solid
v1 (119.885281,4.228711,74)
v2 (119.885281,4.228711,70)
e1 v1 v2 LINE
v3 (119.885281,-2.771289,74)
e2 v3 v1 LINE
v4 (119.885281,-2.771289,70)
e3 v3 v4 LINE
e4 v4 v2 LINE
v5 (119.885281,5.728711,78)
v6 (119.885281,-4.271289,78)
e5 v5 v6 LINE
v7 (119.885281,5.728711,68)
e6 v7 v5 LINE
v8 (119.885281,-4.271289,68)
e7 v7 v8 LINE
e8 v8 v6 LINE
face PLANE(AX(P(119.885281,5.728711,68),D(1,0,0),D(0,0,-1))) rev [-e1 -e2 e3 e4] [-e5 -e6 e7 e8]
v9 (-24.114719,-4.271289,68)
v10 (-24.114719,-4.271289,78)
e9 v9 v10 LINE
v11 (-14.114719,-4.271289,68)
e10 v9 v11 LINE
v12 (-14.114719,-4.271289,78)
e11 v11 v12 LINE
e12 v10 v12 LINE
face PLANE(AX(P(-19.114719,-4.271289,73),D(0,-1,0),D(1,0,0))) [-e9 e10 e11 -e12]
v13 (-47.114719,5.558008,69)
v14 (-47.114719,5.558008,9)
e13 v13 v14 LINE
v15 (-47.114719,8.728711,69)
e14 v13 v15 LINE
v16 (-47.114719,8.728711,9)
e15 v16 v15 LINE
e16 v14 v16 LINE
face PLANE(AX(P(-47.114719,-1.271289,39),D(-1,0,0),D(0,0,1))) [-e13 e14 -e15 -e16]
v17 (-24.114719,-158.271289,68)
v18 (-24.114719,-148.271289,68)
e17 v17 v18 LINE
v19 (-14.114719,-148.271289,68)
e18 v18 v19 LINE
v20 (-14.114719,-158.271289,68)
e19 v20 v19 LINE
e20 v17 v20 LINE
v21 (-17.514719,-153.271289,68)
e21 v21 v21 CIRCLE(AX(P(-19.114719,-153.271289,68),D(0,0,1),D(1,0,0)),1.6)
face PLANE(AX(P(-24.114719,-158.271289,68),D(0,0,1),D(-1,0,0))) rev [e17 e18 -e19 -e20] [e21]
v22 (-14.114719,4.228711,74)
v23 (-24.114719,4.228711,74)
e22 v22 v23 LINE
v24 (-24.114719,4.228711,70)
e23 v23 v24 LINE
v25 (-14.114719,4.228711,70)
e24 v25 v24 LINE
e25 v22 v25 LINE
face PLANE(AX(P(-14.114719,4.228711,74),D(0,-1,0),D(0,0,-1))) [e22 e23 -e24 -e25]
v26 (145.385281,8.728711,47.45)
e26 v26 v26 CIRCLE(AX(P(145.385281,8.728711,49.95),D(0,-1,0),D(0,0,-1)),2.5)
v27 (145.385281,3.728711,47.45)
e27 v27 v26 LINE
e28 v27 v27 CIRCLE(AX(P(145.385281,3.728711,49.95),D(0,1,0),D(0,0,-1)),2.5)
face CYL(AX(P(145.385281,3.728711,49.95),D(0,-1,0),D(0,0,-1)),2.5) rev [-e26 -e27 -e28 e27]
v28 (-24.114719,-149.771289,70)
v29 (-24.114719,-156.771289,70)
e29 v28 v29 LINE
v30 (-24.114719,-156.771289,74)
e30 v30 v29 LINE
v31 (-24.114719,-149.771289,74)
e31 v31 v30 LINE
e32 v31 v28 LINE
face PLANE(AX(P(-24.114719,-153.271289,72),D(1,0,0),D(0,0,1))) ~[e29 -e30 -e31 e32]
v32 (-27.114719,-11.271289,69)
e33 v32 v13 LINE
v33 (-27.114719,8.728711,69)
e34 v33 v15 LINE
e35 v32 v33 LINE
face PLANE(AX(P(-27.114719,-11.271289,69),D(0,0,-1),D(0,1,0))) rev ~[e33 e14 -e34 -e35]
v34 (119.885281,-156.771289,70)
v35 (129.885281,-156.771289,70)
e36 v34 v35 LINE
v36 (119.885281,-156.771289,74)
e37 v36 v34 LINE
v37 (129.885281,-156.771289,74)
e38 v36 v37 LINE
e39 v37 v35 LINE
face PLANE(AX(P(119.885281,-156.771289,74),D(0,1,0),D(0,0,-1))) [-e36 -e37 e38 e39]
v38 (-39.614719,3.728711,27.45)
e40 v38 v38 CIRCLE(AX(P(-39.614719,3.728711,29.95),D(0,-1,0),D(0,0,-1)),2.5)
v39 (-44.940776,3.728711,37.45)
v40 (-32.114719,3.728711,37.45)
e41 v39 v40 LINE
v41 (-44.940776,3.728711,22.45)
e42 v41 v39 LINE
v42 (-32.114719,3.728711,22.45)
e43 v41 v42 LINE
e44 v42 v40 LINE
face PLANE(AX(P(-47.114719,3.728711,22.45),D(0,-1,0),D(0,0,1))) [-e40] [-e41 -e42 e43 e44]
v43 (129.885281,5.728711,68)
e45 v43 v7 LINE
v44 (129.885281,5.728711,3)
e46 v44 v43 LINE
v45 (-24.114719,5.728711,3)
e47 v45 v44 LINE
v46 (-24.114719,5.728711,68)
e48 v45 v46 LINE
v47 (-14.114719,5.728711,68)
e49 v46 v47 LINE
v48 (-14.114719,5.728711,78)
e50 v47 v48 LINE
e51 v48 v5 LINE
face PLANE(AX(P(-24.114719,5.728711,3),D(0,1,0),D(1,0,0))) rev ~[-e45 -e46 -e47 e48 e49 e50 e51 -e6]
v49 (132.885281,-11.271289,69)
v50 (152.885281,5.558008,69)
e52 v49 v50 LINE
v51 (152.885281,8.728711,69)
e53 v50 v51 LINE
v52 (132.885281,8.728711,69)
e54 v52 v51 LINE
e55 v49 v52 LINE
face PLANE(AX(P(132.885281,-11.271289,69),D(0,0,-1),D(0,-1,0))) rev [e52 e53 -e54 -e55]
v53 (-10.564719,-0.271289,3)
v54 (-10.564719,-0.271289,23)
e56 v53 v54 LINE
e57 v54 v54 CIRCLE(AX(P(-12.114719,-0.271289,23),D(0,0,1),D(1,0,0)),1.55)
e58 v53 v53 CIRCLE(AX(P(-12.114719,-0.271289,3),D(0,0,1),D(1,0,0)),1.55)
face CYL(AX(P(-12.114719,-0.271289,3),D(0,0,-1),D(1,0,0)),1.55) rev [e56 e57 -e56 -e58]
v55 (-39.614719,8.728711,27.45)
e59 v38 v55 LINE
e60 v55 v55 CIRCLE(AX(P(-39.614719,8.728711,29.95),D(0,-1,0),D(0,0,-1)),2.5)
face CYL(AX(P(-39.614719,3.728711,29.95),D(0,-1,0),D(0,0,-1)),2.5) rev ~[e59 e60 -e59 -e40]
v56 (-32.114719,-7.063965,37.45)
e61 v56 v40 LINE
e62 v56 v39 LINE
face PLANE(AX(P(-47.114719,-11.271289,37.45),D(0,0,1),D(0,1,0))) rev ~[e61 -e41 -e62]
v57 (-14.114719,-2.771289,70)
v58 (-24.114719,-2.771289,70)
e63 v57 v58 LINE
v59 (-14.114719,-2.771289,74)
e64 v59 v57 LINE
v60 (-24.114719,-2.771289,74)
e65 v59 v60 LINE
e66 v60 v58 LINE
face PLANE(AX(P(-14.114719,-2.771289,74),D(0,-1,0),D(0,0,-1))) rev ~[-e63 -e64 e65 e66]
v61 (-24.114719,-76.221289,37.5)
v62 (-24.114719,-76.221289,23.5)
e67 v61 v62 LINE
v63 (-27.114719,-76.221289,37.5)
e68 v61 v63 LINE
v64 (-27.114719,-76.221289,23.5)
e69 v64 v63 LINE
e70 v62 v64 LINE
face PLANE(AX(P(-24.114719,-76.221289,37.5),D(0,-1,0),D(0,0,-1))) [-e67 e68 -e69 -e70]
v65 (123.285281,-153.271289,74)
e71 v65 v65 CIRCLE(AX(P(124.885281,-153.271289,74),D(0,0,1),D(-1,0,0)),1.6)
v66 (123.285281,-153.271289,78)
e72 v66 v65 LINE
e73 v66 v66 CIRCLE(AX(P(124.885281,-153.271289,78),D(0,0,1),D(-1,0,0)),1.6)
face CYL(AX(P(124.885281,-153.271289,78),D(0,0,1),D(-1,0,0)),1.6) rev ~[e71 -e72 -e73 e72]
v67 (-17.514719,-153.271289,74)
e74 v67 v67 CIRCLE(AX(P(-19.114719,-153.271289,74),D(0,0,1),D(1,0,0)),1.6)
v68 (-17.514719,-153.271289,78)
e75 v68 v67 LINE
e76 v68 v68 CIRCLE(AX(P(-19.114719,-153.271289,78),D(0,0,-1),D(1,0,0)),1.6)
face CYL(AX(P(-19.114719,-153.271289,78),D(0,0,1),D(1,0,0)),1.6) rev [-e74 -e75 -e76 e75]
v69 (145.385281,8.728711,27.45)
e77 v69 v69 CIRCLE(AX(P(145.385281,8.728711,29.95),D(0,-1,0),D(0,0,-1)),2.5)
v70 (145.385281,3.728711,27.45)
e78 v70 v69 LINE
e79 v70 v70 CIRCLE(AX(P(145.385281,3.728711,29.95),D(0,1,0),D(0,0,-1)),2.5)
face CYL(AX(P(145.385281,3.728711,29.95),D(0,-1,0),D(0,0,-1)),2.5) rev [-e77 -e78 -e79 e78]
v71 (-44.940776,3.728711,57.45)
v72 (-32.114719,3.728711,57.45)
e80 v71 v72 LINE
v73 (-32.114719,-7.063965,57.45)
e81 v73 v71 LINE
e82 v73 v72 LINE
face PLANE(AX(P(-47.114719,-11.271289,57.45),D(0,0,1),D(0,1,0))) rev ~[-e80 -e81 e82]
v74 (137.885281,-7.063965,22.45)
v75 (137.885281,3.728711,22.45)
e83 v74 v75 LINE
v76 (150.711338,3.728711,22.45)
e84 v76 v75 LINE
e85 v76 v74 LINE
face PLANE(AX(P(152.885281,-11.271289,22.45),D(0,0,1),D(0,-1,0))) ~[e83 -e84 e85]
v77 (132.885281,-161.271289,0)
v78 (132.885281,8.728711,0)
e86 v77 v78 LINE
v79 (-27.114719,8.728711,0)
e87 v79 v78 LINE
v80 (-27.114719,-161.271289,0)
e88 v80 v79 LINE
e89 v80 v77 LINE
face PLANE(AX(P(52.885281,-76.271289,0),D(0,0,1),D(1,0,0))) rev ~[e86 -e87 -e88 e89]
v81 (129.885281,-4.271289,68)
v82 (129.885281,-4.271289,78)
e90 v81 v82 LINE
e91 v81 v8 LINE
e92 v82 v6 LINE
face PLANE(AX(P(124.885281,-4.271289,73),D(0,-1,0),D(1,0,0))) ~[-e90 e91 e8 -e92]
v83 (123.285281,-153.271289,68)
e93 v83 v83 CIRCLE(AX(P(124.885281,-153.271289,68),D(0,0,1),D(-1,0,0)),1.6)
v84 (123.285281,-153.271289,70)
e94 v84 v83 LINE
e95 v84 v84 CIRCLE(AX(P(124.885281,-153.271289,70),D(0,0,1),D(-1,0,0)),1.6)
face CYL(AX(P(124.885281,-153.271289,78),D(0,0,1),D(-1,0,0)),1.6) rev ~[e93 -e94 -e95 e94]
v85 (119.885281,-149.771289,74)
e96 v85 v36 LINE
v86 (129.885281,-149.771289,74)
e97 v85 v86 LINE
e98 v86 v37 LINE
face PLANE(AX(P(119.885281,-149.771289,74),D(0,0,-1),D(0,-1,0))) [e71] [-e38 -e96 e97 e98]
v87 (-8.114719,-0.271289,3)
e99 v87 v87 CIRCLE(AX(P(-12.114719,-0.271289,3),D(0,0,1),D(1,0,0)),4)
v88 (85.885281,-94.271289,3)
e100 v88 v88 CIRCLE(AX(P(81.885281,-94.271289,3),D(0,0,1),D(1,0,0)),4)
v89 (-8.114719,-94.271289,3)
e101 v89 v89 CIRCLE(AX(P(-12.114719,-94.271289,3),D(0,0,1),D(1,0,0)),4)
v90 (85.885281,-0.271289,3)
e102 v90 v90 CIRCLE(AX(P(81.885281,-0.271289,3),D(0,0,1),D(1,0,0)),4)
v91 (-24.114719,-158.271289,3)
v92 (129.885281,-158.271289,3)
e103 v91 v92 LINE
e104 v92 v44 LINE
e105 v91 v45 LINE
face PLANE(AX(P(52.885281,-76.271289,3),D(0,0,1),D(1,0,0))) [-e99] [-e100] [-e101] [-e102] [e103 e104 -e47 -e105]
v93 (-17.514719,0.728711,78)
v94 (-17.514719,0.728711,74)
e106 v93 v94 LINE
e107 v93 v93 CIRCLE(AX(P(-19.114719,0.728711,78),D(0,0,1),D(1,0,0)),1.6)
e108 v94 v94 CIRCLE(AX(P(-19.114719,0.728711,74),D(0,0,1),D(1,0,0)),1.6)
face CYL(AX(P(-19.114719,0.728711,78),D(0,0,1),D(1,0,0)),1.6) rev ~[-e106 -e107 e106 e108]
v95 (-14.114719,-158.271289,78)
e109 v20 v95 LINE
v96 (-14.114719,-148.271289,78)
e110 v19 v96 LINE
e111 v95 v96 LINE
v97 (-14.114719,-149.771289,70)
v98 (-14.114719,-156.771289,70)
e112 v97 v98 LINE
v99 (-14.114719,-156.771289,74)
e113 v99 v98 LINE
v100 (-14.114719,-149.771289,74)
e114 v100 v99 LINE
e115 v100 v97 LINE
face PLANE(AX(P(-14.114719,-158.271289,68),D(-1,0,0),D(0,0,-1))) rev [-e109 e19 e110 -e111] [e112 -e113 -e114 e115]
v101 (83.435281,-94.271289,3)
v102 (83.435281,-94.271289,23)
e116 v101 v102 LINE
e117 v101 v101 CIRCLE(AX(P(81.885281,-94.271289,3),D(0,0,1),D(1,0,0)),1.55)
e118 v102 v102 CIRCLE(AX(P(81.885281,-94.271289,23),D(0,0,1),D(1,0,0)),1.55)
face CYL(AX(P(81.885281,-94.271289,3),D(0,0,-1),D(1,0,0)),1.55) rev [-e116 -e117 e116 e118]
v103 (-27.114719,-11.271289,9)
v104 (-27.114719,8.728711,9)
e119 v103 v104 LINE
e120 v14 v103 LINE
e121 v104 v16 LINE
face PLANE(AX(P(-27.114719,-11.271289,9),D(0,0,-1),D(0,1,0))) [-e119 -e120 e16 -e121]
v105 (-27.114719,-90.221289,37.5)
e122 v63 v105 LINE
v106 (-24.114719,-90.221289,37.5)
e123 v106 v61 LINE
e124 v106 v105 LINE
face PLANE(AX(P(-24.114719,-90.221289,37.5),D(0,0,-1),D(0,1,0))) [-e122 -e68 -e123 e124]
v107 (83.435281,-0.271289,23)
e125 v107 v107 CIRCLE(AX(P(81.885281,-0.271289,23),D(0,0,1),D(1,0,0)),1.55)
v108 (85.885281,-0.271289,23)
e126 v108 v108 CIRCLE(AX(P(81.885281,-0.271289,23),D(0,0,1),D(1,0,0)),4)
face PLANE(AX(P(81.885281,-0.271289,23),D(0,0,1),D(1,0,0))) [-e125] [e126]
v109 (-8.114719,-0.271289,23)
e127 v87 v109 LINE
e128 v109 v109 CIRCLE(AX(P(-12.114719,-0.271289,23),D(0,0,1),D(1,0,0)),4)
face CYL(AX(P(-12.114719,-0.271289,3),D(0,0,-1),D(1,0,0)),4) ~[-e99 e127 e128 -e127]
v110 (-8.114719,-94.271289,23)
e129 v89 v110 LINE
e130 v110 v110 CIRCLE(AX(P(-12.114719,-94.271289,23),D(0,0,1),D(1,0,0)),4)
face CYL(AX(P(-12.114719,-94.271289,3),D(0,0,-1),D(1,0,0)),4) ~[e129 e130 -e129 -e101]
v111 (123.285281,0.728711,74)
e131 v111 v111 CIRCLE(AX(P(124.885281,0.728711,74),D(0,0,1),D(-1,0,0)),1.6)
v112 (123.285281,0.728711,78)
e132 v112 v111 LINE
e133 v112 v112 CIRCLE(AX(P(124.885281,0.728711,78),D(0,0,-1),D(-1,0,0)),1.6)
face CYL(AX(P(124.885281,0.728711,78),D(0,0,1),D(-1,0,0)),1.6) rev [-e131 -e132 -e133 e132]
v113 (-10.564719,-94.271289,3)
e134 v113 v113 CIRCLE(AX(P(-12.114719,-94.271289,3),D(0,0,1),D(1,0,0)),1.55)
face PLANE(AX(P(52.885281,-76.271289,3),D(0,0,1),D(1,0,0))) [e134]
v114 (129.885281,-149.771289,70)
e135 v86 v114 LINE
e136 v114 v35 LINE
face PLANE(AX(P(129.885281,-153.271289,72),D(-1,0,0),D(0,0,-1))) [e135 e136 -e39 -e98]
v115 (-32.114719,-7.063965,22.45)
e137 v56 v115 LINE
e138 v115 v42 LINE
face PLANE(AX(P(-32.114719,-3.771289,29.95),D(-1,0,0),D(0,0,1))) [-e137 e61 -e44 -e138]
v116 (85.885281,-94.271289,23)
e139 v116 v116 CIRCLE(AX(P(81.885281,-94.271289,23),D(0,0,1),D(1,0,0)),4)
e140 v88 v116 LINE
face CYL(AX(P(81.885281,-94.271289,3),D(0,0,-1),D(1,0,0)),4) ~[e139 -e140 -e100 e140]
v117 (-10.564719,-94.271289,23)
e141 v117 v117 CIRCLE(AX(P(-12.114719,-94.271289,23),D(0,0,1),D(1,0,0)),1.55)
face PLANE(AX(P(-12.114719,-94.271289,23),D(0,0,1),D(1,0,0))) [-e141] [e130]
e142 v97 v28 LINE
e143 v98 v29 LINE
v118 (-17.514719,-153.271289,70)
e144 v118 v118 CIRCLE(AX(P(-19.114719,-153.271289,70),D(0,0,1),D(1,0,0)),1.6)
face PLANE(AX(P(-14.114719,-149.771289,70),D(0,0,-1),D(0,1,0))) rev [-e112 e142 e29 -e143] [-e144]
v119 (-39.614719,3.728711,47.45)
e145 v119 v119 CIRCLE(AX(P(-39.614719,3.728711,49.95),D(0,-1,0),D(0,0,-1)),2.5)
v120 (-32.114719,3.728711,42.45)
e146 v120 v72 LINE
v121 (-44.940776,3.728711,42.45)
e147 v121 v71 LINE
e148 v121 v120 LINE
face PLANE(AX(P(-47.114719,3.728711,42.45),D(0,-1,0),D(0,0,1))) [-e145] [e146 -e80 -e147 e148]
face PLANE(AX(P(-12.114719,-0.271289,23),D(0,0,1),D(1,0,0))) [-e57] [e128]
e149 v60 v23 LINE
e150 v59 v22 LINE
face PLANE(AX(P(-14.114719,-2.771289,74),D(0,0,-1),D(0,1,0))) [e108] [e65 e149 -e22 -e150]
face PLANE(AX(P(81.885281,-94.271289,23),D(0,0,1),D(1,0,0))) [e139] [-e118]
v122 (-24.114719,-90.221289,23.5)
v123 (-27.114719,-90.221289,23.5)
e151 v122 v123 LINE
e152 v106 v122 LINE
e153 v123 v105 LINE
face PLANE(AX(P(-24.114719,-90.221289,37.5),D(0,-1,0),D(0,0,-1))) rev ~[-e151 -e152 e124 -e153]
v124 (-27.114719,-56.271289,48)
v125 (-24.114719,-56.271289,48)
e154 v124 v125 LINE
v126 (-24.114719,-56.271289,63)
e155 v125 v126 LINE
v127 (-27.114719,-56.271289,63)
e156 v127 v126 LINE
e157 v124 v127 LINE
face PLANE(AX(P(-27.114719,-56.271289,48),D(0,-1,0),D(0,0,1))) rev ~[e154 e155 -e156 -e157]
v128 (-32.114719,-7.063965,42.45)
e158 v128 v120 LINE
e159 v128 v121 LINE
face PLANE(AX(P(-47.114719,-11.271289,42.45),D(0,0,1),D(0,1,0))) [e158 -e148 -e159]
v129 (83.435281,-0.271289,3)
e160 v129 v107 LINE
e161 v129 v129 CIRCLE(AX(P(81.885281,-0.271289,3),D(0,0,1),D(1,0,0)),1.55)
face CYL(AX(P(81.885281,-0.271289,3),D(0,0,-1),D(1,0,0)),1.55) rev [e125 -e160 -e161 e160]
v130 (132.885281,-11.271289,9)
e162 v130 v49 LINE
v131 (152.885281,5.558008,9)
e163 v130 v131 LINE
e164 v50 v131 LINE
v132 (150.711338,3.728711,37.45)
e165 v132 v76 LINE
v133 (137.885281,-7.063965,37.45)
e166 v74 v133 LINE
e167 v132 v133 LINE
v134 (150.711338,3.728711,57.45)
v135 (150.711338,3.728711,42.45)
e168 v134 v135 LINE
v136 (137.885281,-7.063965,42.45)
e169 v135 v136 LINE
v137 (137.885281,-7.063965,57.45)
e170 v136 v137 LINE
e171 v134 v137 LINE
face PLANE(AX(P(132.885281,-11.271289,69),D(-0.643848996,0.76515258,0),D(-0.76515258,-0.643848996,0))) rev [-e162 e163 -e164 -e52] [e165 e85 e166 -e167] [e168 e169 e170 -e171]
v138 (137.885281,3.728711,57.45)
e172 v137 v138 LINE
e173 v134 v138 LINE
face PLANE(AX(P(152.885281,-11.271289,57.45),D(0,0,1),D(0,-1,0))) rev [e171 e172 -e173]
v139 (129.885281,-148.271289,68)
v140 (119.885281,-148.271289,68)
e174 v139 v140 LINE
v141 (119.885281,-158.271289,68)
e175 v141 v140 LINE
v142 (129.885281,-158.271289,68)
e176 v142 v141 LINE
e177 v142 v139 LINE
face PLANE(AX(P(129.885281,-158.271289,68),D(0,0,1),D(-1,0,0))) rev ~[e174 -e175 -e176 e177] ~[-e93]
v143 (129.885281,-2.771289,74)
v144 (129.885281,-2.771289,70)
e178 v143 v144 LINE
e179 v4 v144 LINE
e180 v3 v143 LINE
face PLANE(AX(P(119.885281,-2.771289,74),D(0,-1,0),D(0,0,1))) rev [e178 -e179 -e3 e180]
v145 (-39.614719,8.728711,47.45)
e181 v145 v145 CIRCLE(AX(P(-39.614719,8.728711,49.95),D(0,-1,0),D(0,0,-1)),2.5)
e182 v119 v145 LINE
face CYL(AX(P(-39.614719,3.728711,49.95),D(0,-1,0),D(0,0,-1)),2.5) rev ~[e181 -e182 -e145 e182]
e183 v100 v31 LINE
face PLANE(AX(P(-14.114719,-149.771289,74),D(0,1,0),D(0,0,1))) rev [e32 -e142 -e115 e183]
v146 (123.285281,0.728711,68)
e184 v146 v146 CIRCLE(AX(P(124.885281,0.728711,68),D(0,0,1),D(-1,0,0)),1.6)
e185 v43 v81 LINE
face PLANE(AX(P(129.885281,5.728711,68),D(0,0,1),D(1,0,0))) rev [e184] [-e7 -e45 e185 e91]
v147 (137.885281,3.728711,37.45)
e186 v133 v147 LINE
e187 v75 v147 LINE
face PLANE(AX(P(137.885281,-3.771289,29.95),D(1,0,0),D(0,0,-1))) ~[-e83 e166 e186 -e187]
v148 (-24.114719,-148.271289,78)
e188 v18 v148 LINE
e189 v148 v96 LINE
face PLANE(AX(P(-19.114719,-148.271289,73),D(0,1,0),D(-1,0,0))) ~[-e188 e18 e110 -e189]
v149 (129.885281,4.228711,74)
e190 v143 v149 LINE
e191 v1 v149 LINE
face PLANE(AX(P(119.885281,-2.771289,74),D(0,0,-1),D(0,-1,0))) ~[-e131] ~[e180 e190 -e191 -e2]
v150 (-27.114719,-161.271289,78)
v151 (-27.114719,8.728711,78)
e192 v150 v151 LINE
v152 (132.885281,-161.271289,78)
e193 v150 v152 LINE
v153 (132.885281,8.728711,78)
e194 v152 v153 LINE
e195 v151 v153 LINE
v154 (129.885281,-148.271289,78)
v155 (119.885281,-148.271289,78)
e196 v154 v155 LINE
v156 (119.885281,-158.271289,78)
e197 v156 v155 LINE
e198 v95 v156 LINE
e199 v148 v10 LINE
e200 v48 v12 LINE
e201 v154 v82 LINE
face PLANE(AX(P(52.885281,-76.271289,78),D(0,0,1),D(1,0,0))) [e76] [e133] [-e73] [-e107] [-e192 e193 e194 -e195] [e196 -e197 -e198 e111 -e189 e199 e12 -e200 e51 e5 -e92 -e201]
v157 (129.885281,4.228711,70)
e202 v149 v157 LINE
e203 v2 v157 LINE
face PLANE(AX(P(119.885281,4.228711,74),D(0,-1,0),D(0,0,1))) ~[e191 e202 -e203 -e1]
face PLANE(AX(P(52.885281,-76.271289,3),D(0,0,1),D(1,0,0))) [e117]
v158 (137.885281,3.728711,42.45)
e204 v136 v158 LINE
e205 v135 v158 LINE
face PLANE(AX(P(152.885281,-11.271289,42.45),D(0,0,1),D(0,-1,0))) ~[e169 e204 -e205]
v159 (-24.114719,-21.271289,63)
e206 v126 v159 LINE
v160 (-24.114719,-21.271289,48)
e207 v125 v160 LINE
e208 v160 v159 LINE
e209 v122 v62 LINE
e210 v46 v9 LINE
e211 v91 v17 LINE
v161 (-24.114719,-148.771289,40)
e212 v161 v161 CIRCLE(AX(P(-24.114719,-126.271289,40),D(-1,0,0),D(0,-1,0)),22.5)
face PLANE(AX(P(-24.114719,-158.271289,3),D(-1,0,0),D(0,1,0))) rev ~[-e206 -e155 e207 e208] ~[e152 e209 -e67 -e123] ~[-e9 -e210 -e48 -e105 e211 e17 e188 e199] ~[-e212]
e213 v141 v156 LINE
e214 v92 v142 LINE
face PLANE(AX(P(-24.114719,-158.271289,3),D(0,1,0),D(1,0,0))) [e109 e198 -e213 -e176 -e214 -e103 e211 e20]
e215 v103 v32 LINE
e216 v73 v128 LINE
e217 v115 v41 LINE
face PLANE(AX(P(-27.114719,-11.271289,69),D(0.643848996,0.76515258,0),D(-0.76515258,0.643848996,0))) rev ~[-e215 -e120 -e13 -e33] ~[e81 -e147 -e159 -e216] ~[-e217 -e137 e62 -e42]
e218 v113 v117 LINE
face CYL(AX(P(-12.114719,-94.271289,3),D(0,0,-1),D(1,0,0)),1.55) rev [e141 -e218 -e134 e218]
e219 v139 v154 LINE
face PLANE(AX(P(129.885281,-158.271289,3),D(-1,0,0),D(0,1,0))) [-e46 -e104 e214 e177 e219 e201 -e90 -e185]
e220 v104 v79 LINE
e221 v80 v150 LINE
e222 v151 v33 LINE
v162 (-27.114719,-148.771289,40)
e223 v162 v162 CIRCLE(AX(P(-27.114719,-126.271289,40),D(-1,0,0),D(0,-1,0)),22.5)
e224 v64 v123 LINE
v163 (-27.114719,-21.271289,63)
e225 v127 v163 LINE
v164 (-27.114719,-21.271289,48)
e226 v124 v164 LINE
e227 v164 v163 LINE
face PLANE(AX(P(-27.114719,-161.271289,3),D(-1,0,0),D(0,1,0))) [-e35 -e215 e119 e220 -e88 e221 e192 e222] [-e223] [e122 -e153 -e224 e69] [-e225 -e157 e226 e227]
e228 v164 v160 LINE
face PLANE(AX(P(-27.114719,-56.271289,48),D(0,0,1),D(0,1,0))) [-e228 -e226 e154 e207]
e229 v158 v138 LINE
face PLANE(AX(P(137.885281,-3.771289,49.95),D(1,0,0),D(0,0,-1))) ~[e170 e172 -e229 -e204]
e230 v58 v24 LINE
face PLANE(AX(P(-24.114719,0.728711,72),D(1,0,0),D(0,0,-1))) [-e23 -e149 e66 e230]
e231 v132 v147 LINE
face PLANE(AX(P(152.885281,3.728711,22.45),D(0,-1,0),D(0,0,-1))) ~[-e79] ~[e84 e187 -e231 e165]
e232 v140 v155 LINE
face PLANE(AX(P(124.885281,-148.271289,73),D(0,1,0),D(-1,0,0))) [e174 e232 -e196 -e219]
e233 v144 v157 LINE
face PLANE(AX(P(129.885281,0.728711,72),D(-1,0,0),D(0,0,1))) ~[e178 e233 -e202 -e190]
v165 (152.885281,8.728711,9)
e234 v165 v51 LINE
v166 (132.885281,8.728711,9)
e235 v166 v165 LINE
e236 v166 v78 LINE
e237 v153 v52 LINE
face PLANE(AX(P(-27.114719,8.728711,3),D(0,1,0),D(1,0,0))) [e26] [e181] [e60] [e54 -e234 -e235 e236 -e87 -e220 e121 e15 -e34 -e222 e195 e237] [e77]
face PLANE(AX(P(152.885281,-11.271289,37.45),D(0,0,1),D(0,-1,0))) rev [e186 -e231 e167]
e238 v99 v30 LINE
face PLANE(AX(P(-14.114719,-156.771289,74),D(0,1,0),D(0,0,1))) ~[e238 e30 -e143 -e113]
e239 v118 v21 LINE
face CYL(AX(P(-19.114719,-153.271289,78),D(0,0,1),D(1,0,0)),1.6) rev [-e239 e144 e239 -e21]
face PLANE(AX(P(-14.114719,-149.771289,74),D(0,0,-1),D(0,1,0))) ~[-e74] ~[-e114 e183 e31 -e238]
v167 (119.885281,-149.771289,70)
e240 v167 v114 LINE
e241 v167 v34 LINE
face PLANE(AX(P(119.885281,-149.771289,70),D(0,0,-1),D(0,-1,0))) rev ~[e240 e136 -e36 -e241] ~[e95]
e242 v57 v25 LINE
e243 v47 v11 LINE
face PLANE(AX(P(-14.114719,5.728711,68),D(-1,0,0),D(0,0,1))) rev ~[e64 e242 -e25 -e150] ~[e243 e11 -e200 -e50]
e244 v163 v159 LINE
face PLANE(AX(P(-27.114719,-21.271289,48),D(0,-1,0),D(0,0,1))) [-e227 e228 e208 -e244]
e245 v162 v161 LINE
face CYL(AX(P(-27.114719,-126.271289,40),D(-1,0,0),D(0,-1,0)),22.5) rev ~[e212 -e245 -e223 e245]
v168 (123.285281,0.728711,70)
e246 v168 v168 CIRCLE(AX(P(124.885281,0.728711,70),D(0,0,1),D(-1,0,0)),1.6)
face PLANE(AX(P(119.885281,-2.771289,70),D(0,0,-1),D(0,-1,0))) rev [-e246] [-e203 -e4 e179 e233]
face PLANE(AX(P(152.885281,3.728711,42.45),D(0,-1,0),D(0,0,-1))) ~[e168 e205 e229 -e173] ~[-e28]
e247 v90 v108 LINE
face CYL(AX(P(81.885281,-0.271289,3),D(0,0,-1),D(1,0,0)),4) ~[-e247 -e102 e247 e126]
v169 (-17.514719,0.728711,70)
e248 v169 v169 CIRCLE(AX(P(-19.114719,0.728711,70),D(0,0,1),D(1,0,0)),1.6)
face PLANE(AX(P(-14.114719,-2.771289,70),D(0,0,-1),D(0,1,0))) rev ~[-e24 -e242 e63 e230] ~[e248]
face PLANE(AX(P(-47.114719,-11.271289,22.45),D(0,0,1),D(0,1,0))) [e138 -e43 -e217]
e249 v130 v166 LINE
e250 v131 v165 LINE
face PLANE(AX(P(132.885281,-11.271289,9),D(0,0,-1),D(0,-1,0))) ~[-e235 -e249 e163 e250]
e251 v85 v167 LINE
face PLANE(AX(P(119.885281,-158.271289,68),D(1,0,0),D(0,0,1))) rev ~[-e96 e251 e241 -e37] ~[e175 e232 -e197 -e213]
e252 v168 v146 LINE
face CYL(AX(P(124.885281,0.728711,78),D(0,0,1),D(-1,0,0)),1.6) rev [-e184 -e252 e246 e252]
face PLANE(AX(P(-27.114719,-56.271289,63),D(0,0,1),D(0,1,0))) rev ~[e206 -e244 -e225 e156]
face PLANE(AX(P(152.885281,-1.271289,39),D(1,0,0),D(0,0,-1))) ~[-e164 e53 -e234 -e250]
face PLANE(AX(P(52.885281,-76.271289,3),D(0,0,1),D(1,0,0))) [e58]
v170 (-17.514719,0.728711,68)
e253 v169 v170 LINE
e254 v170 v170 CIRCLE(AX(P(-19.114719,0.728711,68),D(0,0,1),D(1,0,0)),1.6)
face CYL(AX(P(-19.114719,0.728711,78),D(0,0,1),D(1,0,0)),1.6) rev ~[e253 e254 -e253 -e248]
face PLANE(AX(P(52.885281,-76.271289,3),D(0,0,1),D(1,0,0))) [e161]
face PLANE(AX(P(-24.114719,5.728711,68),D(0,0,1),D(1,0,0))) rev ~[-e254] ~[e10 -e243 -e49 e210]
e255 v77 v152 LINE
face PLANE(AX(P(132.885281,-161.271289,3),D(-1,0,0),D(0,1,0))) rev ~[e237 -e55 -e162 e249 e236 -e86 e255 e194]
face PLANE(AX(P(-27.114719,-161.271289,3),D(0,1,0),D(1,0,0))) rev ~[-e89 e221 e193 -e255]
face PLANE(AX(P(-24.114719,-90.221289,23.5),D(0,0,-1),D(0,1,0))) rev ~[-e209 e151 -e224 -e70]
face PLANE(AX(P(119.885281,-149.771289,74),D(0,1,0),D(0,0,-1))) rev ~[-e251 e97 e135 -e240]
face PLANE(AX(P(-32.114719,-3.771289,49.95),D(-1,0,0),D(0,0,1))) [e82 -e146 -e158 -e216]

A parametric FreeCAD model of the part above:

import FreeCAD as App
import Part
import Sketcher

V = App.Vector
Q = App.Units.Quantity

doc = App.newDocument("Part")
body = doc.addObject("PartDesign::Body", "Body")

# Sketch on XY plane
sketch1 = body.newObject("Sketcher::SketchObject", "Sketch")
sketch1.AttachmentSupport = (doc.getObject("XY_Plane"), [""])
sketch1.MapMode = "FlatFace"
sketch1.addGeometry([
    Part.LineSegment(V(-27, 9, 0), V(-27, -161, 0)),
    Part.LineSegment(V(-27, -161, 0), V(133, -161, 0)),
    Part.LineSegment(V(133, -161, 0), V(133, 9, 0)),
    Part.LineSegment(V(133, 9, 0), V(-27, 9, 0)),
], False)
sketch1.addConstraint([
    Sketcher.Constraint("Coincident", 0, 2, 1, 1),
    Sketcher.Constraint("Coincident", 1, 2, 2, 1),
    Sketcher.Constraint("Coincident", 2, 2, 3, 1),
    Sketcher.Constraint("Coincident", 3, 2, 0, 1),
    Sketcher.Constraint("Vertical", 0),
    Sketcher.Constraint("Horizontal", 1),
    Sketcher.Constraint("Vertical", 2),
    Sketcher.Constraint("Horizontal", 3),
    Sketcher.Constraint("DistanceX", 1, 1, 1, 2, Q("160 mm")),
    Sketcher.Constraint("DistanceY", 0, 2, 0, 1, Q("170 mm")),
    Sketcher.Constraint("DistanceX", 0, 2, -1, 1, Q("27.114719 mm")),
    Sketcher.Constraint("DistanceY", 0, 2, -1, 1, Q("161.271289 mm")),
])
pad1 = body.newObject("PartDesign::Pad", "Pad")
pad1.Profile = sketch1
pad1.Length = 3

# Sketch on XY plane
sketch2 = body.newObject("Sketcher::SketchObject", "Sketch001")
sketch2.AttachmentSupport = (doc.getObject("XY_Plane"), [""])
sketch2.MapMode = "FlatFace"
sketch2.AttachmentOffset = App.Placement(V(0, 0, 3), App.Rotation())
sketch2.addGeometry([
    Part.LineSegment(V(-27, 9, 0), V(-27, -161, 0)),  # 0
    Part.LineSegment(V(-27, -161, 0), V(133, -161, 0)),  # 1
    Part.LineSegment(V(133, -161, 0), V(133, 9, 0)),  # 2
    Part.LineSegment(V(133, 9, 0), V(-27, 9, 0)),  # 3
    Part.LineSegment(V(130, -158, 0), V(-24, -158, 0)),  # 4
    Part.LineSegment(V(-24, -158, 0), V(-24, 6, 0)),  # 5
    Part.LineSegment(V(-24, 6, 0), V(130, 6, 0)),  # 6
    Part.LineSegment(V(130, 6, 0), V(130, -158, 0)),  # 7
], False)
sketch2.addConstraint([
    Sketcher.Constraint("Coincident", 0, 2, 1, 1),
    Sketcher.Constraint("Coincident", 1, 2, 2, 1),
    Sketcher.Constraint("Coincident", 2, 2, 3, 1),
    Sketcher.Constraint("Coincident", 3, 2, 0, 1),
    Sketcher.Constraint("Coincident", 4, 2, 5, 1),
    Sketcher.Constraint("Coincident", 5, 2, 6, 1),
    Sketcher.Constraint("Coincident", 6, 2, 7, 1),
    Sketcher.Constraint("Coincident", 7, 2, 4, 1),
    Sketcher.Constraint("Vertical", 0),
    Sketcher.Constraint("Horizontal", 1),
    Sketcher.Constraint("Vertical", 2),
    Sketcher.Constraint("Horizontal", 3),
    Sketcher.Constraint("Horizontal", 4),
    Sketcher.Constraint("Vertical", 5),
    Sketcher.Constraint("Horizontal", 6),
    Sketcher.Constraint("Vertical", 7),
    Sketcher.Constraint("DistanceX", 1, 1, 1, 2, Q("160 mm")),
    Sketcher.Constraint("DistanceX", 4, 2, 4, 1, Q("154 mm")),
    Sketcher.Constraint("DistanceY", 0, 2, 0, 1, Q("170 mm")),
    Sketcher.Constraint("DistanceY", 5, 1, 5, 2, Q("164 mm")),
    Sketcher.Constraint("DistanceX", 0, 2, 4, 2, Q("3 mm")),
    Sketcher.Constraint("DistanceY", 0, 2, 4, 2, Q("3 mm")),
    Sketcher.Constraint("DistanceX", 0, 2, -1, 1, Q("27.114719 mm")),
    Sketcher.Constraint("DistanceY", 0, 2, -1, 1, Q("161.271289 mm")),
])
pad2 = body.newObject("PartDesign::Pad", "Pad001")
pad2.Profile = sketch2
pad2.Length = 75

# Sketch on XY plane
sketch3 = body.newObject("Sketcher::SketchObject", "Sketch002")
sketch3.AttachmentSupport = (doc.getObject("XY_Plane"), [""])
sketch3.MapMode = "FlatFace"
sketch3.AttachmentOffset = App.Placement(V(0, 0, 3), App.Rotation())
sketch3.addGeometry([
    Part.Circle(V(-12.1, -0.3, 0), V(0, 0, 1), 4),  # 0
    Part.Circle(V(-12.1, -0.3, 0), V(0, 0, 1), 1.6),  # 1
    Part.Circle(V(81.9, -0.3, 0), V(0, 0, 1), 4),  # 2
    Part.Circle(V(81.9, -0.3, 0), V(0, 0, 1), 1.6),  # 3
    Part.Circle(V(-12.1, -94.3, 0), V(0, 0, 1), 4),  # 4
    Part.Circle(V(-12.1, -94.3, 0), V(0, 0, 1), 1.6),  # 5
    Part.Circle(V(81.9, -94.3, 0), V(0, 0, 1), 4),  # 6
    Part.Circle(V(81.9, -94.3, 0), V(0, 0, 1), 1.6),  # 7
], False)
sketch3.addConstraint([
    Sketcher.Constraint("Coincident", 1, 3, 0, 3),
    Sketcher.Constraint("Coincident", 3, 3, 2, 3),
    Sketcher.Constraint("Coincident", 5, 3, 4, 3),
    Sketcher.Constraint("Coincident", 7, 3, 6, 3),
    Sketcher.Constraint("Equal", 0, 2),
    Sketcher.Constraint("Equal", 1, 3),
    Sketcher.Constraint("Equal", 2, 4),
    Sketcher.Constraint("Equal", 3, 5),
    Sketcher.Constraint("Equal", 4, 6),
    Sketcher.Constraint("Equal", 5, 7),
    Sketcher.Constraint("Horizontal", 1, 3, 2, 3),
    Sketcher.Constraint("Horizontal", 5, 3, 6, 3),
    Sketcher.Constraint("Vertical", 1, 3, 4, 3),
    Sketcher.Constraint("Vertical", 3, 3, 6, 3),
    Sketcher.Constraint("Diameter", 0, Q("8 mm")),
    Sketcher.Constraint("Diameter", 1, Q("3.1 mm")),
    Sketcher.Constraint("DistanceX", 0, 3, 2, 3, Q("94 mm")),
    Sketcher.Constraint("DistanceY", 4, 3, 0, 3, Q("94 mm")),
    Sketcher.Constraint("DistanceX", 0, 3, -1, 1, Q("12.114719 mm")),
    Sketcher.Constraint("DistanceY", 0, 3, -1, 1, Q("0.271289 mm")),
])
pad3 = body.newObject("PartDesign::Pad", "Pad002")
pad3.Profile = sketch3
pad3.Length = 20

# Sketch on YZ plane
sketch4 = body.newObject("Sketcher::SketchObject", "Sketch003")
sketch4.AttachmentSupport = (doc.getObject("YZ_Plane"), [""])
sketch4.MapMode = "FlatFace"
sketch4.AttachmentOffset = App.Placement(V(0, 0, -24.114719), App.Rotation())
sketch4.addGeometry([
    Part.LineSegment(V(-76, 38, 0), V(-90, 38, 0)),
    Part.LineSegment(V(-90, 38, 0), V(-90, 24, 0)),
    Part.LineSegment(V(-90, 24, 0), V(-76, 24, 0)),
    Part.LineSegment(V(-76, 24, 0), V(-76, 38, 0)),
], False)
sketch4.addConstraint([
    Sketcher.Constraint("Coincident", 0, 2, 1, 1),
    Sketcher.Constraint("Coincident", 1, 2, 2, 1),
    Sketcher.Constraint("Coincident", 2, 2, 3, 1),
    Sketcher.Constraint("Coincident", 3, 2, 0, 1),
    Sketcher.Constraint("Horizontal", 0),
    Sketcher.Constraint("Vertical", 1),
    Sketcher.Constraint("Horizontal", 2),
    Sketcher.Constraint("Vertical", 3),
    Sketcher.Constraint("Equal", 2, 1),
    Sketcher.Constraint("DistanceX", 0, 2, 0, 1, Q("14 mm")),
    Sketcher.Constraint("DistanceY", -1, 1, 0, 2, Q("37.5 mm")),
    Sketcher.Constraint("DistanceX", 0, 2, -1, 1, Q("90.221289 mm")),
])
pocket1 = body.newObject("PartDesign::Pocket", "Pocket")
pocket1.Profile = sketch4
pocket1.Length = 20

# Sketch on YZ plane
sketch5 = body.newObject("Sketcher::SketchObject", "Sketch004")
sketch5.AttachmentSupport = (doc.getObject("YZ_Plane"), [""])
sketch5.MapMode = "FlatFace"
sketch5.AttachmentOffset = App.Placement(V(0, 0, -27.114719), App.Rotation())
sketch5.addGeometry(Part.Circle(V(-126, 40, 0), V(0, 0, 1), 22), False)
sketch5.addConstraint([
    Sketcher.Constraint("Diameter", 0, Q("45 mm")),
    Sketcher.Constraint("DistanceY", -1, 1, 0, 3, Q("40 mm")),
    Sketcher.Constraint("DistanceX", 0, 3, -1, 1, Q("126.271289 mm")),
])
pocket2 = body.newObject("PartDesign::Pocket", "Pocket001")
pocket2.Profile = sketch5
pocket2.Length = 10
pocket2.Reversed = True

# Sketch on YZ plane
sketch6 = body.newObject("Sketcher::SketchObject", "Sketch005")
sketch6.AttachmentSupport = (doc.getObject("YZ_Plane"), [""])
sketch6.MapMode = "FlatFace"
sketch6.AttachmentOffset = App.Placement(V(0, 0, -27.114719), App.Rotation())
sketch6.addGeometry([
    Part.LineSegment(V(-21, 48, 0), V(-56, 48, 0)),
    Part.LineSegment(V(-56, 48, 0), V(-56, 63, 0)),
    Part.LineSegment(V(-56, 63, 0), V(-21, 63, 0)),
    Part.LineSegment(V(-21, 63, 0), V(-21, 48, 0)),
], False)
sketch6.addConstraint([
    Sketcher.Constraint("Coincident", 0, 2, 1, 1),
    Sketcher.Constraint("Coincident", 1, 2, 2, 1),
    Sketcher.Constraint("Coincident", 2, 2, 3, 1),
    Sketcher.Constraint("Coincident", 3, 2, 0, 1),
    Sketcher.Constraint("Horizontal", 0),
    Sketcher.Constraint("Vertical", 1),
    Sketcher.Constraint("Horizontal", 2),
    Sketcher.Constraint("Vertical", 3),
    Sketcher.Constraint("DistanceX", 0, 2, 0, 1, Q("35 mm")),
    Sketcher.Constraint("DistanceY", 1, 1, 1, 2, Q("15 mm")),
    Sketcher.Constraint("DistanceY", -1, 1, 0, 2, Q("48 mm")),
    Sketcher.Constraint("DistanceX", 0, 2, -1, 1, Q("56.271289 mm")),
])
pocket3 = body.newObject("PartDesign::Pocket", "Pocket002")
pocket3.Profile = sketch6
pocket3.Length = 10
pocket3.Reversed = True

# Sketch on XZ plane
sketch7 = body.newObject("Sketcher::SketchObject", "Sketch006")
sketch7.AttachmentSupport = (doc.getObject("XZ_Plane"), [""])
sketch7.MapMode = "FlatFace"
sketch7.AttachmentOffset = App.Placement(V(0, 0, -5.728711), App.Rotation())
sketch7.addGeometry([
    Part.LineSegment(V(-24, 78, 0), V(-24, 68, 0)),
    Part.LineSegment(V(-24, 68, 0), V(-14, 68, 0)),
    Part.LineSegment(V(-14, 68, 0), V(-14, 78, 0)),
    Part.LineSegment(V(-14, 78, 0), V(-24, 78, 0)),
], False)
sketch7.addConstraint([
    Sketcher.Constraint("Coincident", 0, 2, 1, 1),
    Sketcher.Constraint("Coincident", 1, 2, 2, 1),
    Sketcher.Constraint("Coincident", 2, 2, 3, 1),
    Sketcher.Constraint("Coincident", 3, 2, 0, 1),
    Sketcher.Constraint("Vertical", 0),
    Sketcher.Constraint("Horizontal", 1),
    Sketcher.Constraint("Vertical", 2),
    Sketcher.Constraint("Horizontal", 3),
    Sketcher.Constraint("Equal", 3, 0),
    Sketcher.Constraint("DistanceX", 1, 1, 1, 2, Q("10 mm")),
    Sketcher.Constraint("DistanceY", -1, 1, 0, 2, Q("68 mm")),
    Sketcher.Constraint("DistanceX", 0, 2, -1, 1, Q("24.114719 mm")),
])
pad4 = body.newObject("PartDesign::Pad", "Pad003")
pad4.Profile = sketch7
pad4.Length = 10

# Sketch on YZ plane
sketch8 = body.newObject("Sketcher::SketchObject", "Sketch007")
sketch8.AttachmentSupport = (doc.getObject("YZ_Plane"), [""])
sketch8.MapMode = "FlatFace"
sketch8.AttachmentOffset = App.Placement(V(0, 0, -14.114719), App.Rotation())
sketch8.addGeometry([
    Part.LineSegment(V(4.2, 74, 0), V(-2.8, 74, 0)),
    Part.LineSegment(V(-2.8, 74, 0), V(-2.8, 70, 0)),
    Part.LineSegment(V(-2.8, 70, 0), V(4.2, 70, 0)),
    Part.LineSegment(V(4.2, 70, 0), V(4.2, 74, 0)),
], False)
sketch8.addConstraint([
    Sketcher.Constraint("Coincident", 0, 2, 1, 1),
    Sketcher.Constraint("Coincident", 1, 2, 2, 1),
    Sketcher.Constraint("Coincident", 2, 2, 3, 1),
    Sketcher.Constraint("Coincident", 3, 2, 0, 1),
    Sketcher.Constraint("Horizontal", 0),
    Sketcher.Constraint("Vertical", 1),
    Sketcher.Constraint("Horizontal", 2),
    Sketcher.Constraint("Vertical", 3),
    Sketcher.Constraint("DistanceX", 0, 2, 0, 1, Q("7 mm")),
    Sketcher.Constraint("DistanceY", 1, 2, 1, 1, Q("4 mm")),
    Sketcher.Constraint("DistanceY", -1, 1, 0, 2, Q("74 mm")),
    Sketcher.Constraint("DistanceX", 0, 2, -1, 1, Q("2.771289 mm")),
])
pocket4 = body.newObject("PartDesign::Pocket", "Pocket003")
pocket4.Profile = sketch8
pocket4.Length = 10

# Sketch on XY plane
sketch9 = body.newObject("Sketcher::SketchObject", "Sketch008")
sketch9.AttachmentSupport = (doc.getObject("XY_Plane"), [""])
sketch9.MapMode = "FlatFace"
sketch9.AttachmentOffset = App.Placement(V(0, 0, 78), App.Rotation())
sketch9.addGeometry(Part.Circle(V(-19.1, 0.7, 0), V(0, 0, 1), 1.6), False)
sketch9.addConstraint([
    Sketcher.Constraint("Diameter", 0, Q("3.2 mm")),
    Sketcher.Constraint("DistanceX", 0, 3, -1, 1, Q("19.114719 mm")),
    Sketcher.Constraint("DistanceY", -1, 1, 0, 3, Q("0.728711 mm")),
])
pocket5 = body.newObject("PartDesign::Pocket", "Pocket004")
pocket5.Profile = sketch9
pocket5.Length = 20
doc.recompute()

datumplane = body.newObject("PartDesign::Plane", "DatumPlane")
datumplane.AttachmentSupport = (doc.getObject("YZ_Plane"), [""])
datumplane.MapMode = "FlatFace"
datumplane.AttachmentOffset = App.Placement(V(0, 0, 52.885281), App.Rotation())
mirrored = body.newObject("PartDesign::Mirrored", "Mirrored")
mirrored.Originals = [pad4, pocket4, pocket5]
mirrored.MirrorPlane = (datumplane, [""])
body.Tip = mirrored
doc.recompute()

datumplane2 = body.newObject("PartDesign::Plane", "DatumPlane001")
datumplane2.AttachmentSupport = (doc.getObject("XZ_Plane"), [""])
datumplane2.MapMode = "FlatFace"
datumplane2.AttachmentOffset = App.Placement(V(0, 0, 76.271289), App.Rotation())
mirrored2 = body.newObject("PartDesign::Mirrored", "Mirrored001")
mirrored2.Originals = [pad4, pocket4, pocket5]
mirrored2.MirrorPlane = (datumplane2, [""])
body.Tip = mirrored2

# Sketch on XZ plane
sketch10 = body.newObject("Sketcher::SketchObject", "Sketch009")
sketch10.AttachmentSupport = (doc.getObject("XZ_Plane"), [""])
sketch10.MapMode = "FlatFace"
sketch10.AttachmentOffset = App.Placement(V(0, 0, 158.271289), App.Rotation())
sketch10.addGeometry([
    Part.LineSegment(V(130, 78, 0), V(130, 68, 0)),
    Part.LineSegment(V(130, 68, 0), V(120, 68, 0)),
    Part.LineSegment(V(120, 68, 0), V(120, 78, 0)),
    Part.LineSegment(V(120, 78, 0), V(130, 78, 0)),
], False)
sketch10.addConstraint([
    Sketcher.Constraint("Coincident", 0, 2, 1, 1),
    Sketcher.Constraint("Coincident", 1, 2, 2, 1),
    Sketcher.Constraint("Coincident", 2, 2, 3, 1),
    Sketcher.Constraint("Coincident", 3, 2, 0, 1),
    Sketcher.Constraint("Vertical", 0),
    Sketcher.Constraint("Horizontal", 1),
    Sketcher.Constraint("Vertical", 2),
    Sketcher.Constraint("Horizontal", 3),
    Sketcher.Constraint("Equal", 3, 0),
    Sketcher.Constraint("DistanceX", 1, 2, 1, 1, Q("10 mm")),
    Sketcher.Constraint("DistanceY", -1, 1, 0, 2, Q("68 mm")),
    Sketcher.Constraint("DistanceX", -1, 1, 0, 2, Q("129.885281 mm")),
])
pad5 = body.newObject("PartDesign::Pad", "Pad004")
pad5.Profile = sketch10
pad5.Length = 10
pad5.Reversed = True

# Sketch on YZ plane
sketch11 = body.newObject("Sketcher::SketchObject", "Sketch010")
sketch11.AttachmentSupport = (doc.getObject("YZ_Plane"), [""])
sketch11.MapMode = "FlatFace"
sketch11.AttachmentOffset = App.Placement(V(0, 0, 119.885281), App.Rotation())
sketch11.addGeometry([
    Part.LineSegment(V(-156.8, 74, 0), V(-149.8, 74, 0)),
    Part.LineSegment(V(-149.8, 74, 0), V(-149.8, 70, 0)),
    Part.LineSegment(V(-149.8, 70, 0), V(-156.8, 70, 0)),
    Part.LineSegment(V(-156.8, 70, 0), V(-156.8, 74, 0)),
], False)
sketch11.addConstraint([
    Sketcher.Constraint("Coincident", 0, 2, 1, 1),
    Sketcher.Constraint("Coincident", 1, 2, 2, 1),
    Sketcher.Constraint("Coincident", 2, 2, 3, 1),
    Sketcher.Constraint("Coincident", 3, 2, 0, 1),
    Sketcher.Constraint("Horizontal", 0),
    Sketcher.Constraint("Vertical", 1),
    Sketcher.Constraint("Horizontal", 2),
    Sketcher.Constraint("Vertical", 3),
    Sketcher.Constraint("DistanceX", 0, 1, 0, 2, Q("7 mm")),
    Sketcher.Constraint("DistanceY", 1, 2, 1, 1, Q("4 mm")),
    Sketcher.Constraint("DistanceY", -1, 1, 0, 2, Q("74 mm")),
    Sketcher.Constraint("DistanceX", 0, 2, -1, 1, Q("149.771289 mm")),
])
pocket6 = body.newObject("PartDesign::Pocket", "Pocket005")
pocket6.Profile = sketch11
pocket6.Length = 10
pocket6.Reversed = True

# Sketch on XY plane
sketch12 = body.newObject("Sketcher::SketchObject", "Sketch011")
sketch12.AttachmentSupport = (doc.getObject("XY_Plane"), [""])
sketch12.MapMode = "FlatFace"
sketch12.AttachmentOffset = App.Placement(V(0, 0, 78), App.Rotation())
sketch12.addGeometry(Part.Circle(V(124.9, -153.3, 0), V(0, 0, 1), 1.6), False)
sketch12.addConstraint([
    Sketcher.Constraint("Diameter", 0, Q("3.2 mm")),
    Sketcher.Constraint("DistanceX", -1, 1, 0, 3, Q("124.885281 mm")),
    Sketcher.Constraint("DistanceY", 0, 3, -1, 1, Q("153.271289 mm")),
])
pocket7 = body.newObject("PartDesign::Pocket", "Pocket006")
pocket7.Profile = sketch12
pocket7.Length = 20

# Sketch on YZ plane
sketch13 = body.newObject("Sketcher::SketchObject", "Sketch012")
sketch13.AttachmentSupport = (doc.getObject("YZ_Plane"), [""])
sketch13.MapMode = "FlatFace"
sketch13.AttachmentOffset = App.Placement(V(0, 0, -27.114719), App.Rotation())
sketch13.addGeometry([
    Part.LineSegment(V(9, 9, 0), V(-11, 9, 0)),
    Part.LineSegment(V(-11, 9, 0), V(-11, 69, 0)),
    Part.LineSegment(V(-11, 69, 0), V(9, 69, 0)),
    Part.LineSegment(V(9, 69, 0), V(9, 9, 0)),
], False)
sketch13.addConstraint([
    Sketcher.Constraint("Coincident", 0, 2, 1, 1),
    Sketcher.Constraint("Coincident", 1, 2, 2, 1),
    Sketcher.Constraint("Coincident", 2, 2, 3, 1),
    Sketcher.Constraint("Coincident", 3, 2, 0, 1),
    Sketcher.Constraint("Horizontal", 0),
    Sketcher.Constraint("Vertical", 1),
    Sketcher.Constraint("Horizontal", 2),
    Sketcher.Constraint("Vertical", 3),
    Sketcher.Constraint("DistanceX", 0, 2, 0, 1, Q("20 mm")),
    Sketcher.Constraint("DistanceY", 1, 1, 1, 2, Q("60 mm")),
    Sketcher.Constraint("DistanceY", -1, 1, 0, 2, Q("9 mm")),
    Sketcher.Constraint("DistanceX", 0, 2, -1, 1, Q("11.271289 mm")),
])
pad6 = body.newObject("PartDesign::Pad", "Pad005")
pad6.Profile = sketch13
pad6.Length = 20
pad6.Reversed = True

# Sketch on YZ plane
sketch14 = body.newObject("Sketcher::SketchObject", "Sketch013")
sketch14.AttachmentSupport = (doc.getObject("YZ_Plane"), [""])
sketch14.MapMode = "FlatFace"
sketch14.AttachmentOffset = App.Placement(V(0, 0, -47.114719), App.Rotation())
sketch14.addGeometry([
    Part.LineSegment(V(4, 22, 0), V(-11, 22, 0)),  # 0
    Part.LineSegment(V(-11, 22, 0), V(-11, 37, 0)),  # 1
    Part.LineSegment(V(-11, 37, 0), V(4, 37, 0)),  # 2
    Part.LineSegment(V(4, 37, 0), V(4, 22, 0)),  # 3
    Part.LineSegment(V(4, 42, 0), V(-11, 42, 0)),  # 4
    Part.LineSegment(V(-11, 42, 0), V(-11, 57, 0)),  # 5
    Part.LineSegment(V(-11, 57, 0), V(4, 57, 0)),  # 6
    Part.LineSegment(V(4, 57, 0), V(4, 42, 0)),  # 7
], False)
sketch14.addConstraint([
    Sketcher.Constraint("Coincident", 0, 2, 1, 1),
    Sketcher.Constraint("Coincident", 1, 2, 2, 1),
    Sketcher.Constraint("Coincident", 2, 2, 3, 1),
    Sketcher.Constraint("Coincident", 3, 2, 0, 1),
    Sketcher.Constraint("Coincident", 4, 2, 5, 1),
    Sketcher.Constraint("Coincident", 5, 2, 6, 1),
    Sketcher.Constraint("Coincident", 6, 2, 7, 1),
    Sketcher.Constraint("Coincident", 7, 2, 4, 1),
    Sketcher.Constraint("Horizontal", 0),
    Sketcher.Constraint("Vertical", 1),
    Sketcher.Constraint("Horizontal", 2),
    Sketcher.Constraint("Vertical", 3),
    Sketcher.Constraint("Horizontal", 4),
    Sketcher.Constraint("Vertical", 5),
    Sketcher.Constraint("Horizontal", 6),
    Sketcher.Constraint("Vertical", 7),
    Sketcher.Constraint("Vertical", 1, 2, 4, 2),
    Sketcher.Constraint("Vertical", 3, 2, 6, 2),
    Sketcher.Constraint("Equal", 6, 1),
    Sketcher.Constraint("Equal", 3, 5),
    Sketcher.Constraint("DistanceX", 0, 2, 0, 1, Q("15 mm")),
    Sketcher.Constraint("DistanceY", 1, 2, 4, 2, Q("5 mm")),
    Sketcher.Constraint("DistanceY", -1, 1, 0, 2, Q("22.45 mm")),
    Sketcher.Constraint("DistanceX", 0, 2, -1, 1, Q("11.271289 mm")),
])
pocket8 = body.newObject("PartDesign::Pocket", "Pocket007")
pocket8.Profile = sketch14
pocket8.Length = 15
pocket8.Reversed = True

# Sketch on XZ plane
sketch15 = body.newObject("Sketcher::SketchObject", "Sketch014")
sketch15.AttachmentSupport = (doc.getObject("XZ_Plane"), [""])
sketch15.MapMode = "FlatFace"
sketch15.AttachmentOffset = App.Placement(V(0, 0, -3.728711), App.Rotation())
sketch15.addGeometry([
    Part.Circle(V(-39.6, 50, 0), V(0, 0, 1), 2.5),
    Part.Circle(V(-39.6, 29.9, 0), V(0, 0, 1), 2.5),
], False)
sketch15.addConstraint([
    Sketcher.Constraint("Equal", 0, 1),
    Sketcher.Constraint("Vertical", 0, 3, 1, 3),
    Sketcher.Constraint("Diameter", 0, Q("5 mm")),
    Sketcher.Constraint("DistanceY", 1, 3, 0, 3, Q("20 mm")),
    Sketcher.Constraint("DistanceY", -1, 1, 0, 3, Q("49.95 mm")),
    Sketcher.Constraint("DistanceX", 0, 3, -1, 1, Q("39.614719 mm")),
])
pocket9 = body.newObject("PartDesign::Pocket", "Pocket008")
pocket9.Profile = sketch15
pocket9.Length = 15

# Sketch on XY plane
sketch16 = body.newObject("Sketcher::SketchObject", "Sketch015")
sketch16.AttachmentSupport = (doc.getObject("XY_Plane"), [""])
sketch16.MapMode = "FlatFace"
sketch16.AttachmentOffset = App.Placement(V(0, 0, 69), App.Rotation())
sketch16.addGeometry([
    Part.LineSegment(V(-47, -11, 0), V(-27, -11, 0)),
    Part.LineSegment(V(-27, -11, 0), V(-47, 6, 0)),
    Part.LineSegment(V(-47, 6, 0), V(-47, -11, 0)),
], False)
sketch16.addConstraint([
    Sketcher.Constraint("Coincident", 0, 2, 1, 1),
    Sketcher.Constraint("Coincident", 1, 2, 2, 1),
    Sketcher.Constraint("Coincident", 2, 2, 0, 1),
    Sketcher.Constraint("Horizontal", 0),
    Sketcher.Constraint("Vertical", 2),
    Sketcher.Constraint("DistanceX", 0, 1, 0, 2, Q("20 mm")),
    Sketcher.Constraint("DistanceY", 2, 2, 2, 1, Q("16.829297 mm")),
    Sketcher.Constraint("DistanceX", 0, 2, -1, 1, Q("27.114719 mm")),
    Sketcher.Constraint("DistanceY", 0, 2, -1, 1, Q("11.271289 mm")),
])
pocket10 = body.newObject("PartDesign::Pocket", "Pocket009")
pocket10.Profile = sketch16
pocket10.Length = 65
doc.recompute()

datumplane3 = body.newObject("PartDesign::Plane", "DatumPlane002")
datumplane3.AttachmentSupport = (doc.getObject("YZ_Plane"), [""])
datumplane3.MapMode = "FlatFace"
datumplane3.AttachmentOffset = App.Placement(V(0, 0, 52.885281), App.Rotation())
mirrored3 = body.newObject("PartDesign::Mirrored", "Mirrored002")
mirrored3.Originals = [pad6, pocket8, pocket9, pocket10]
mirrored3.MirrorPlane = (datumplane3, [""])
body.Tip = mirrored3

doc.recompute()
